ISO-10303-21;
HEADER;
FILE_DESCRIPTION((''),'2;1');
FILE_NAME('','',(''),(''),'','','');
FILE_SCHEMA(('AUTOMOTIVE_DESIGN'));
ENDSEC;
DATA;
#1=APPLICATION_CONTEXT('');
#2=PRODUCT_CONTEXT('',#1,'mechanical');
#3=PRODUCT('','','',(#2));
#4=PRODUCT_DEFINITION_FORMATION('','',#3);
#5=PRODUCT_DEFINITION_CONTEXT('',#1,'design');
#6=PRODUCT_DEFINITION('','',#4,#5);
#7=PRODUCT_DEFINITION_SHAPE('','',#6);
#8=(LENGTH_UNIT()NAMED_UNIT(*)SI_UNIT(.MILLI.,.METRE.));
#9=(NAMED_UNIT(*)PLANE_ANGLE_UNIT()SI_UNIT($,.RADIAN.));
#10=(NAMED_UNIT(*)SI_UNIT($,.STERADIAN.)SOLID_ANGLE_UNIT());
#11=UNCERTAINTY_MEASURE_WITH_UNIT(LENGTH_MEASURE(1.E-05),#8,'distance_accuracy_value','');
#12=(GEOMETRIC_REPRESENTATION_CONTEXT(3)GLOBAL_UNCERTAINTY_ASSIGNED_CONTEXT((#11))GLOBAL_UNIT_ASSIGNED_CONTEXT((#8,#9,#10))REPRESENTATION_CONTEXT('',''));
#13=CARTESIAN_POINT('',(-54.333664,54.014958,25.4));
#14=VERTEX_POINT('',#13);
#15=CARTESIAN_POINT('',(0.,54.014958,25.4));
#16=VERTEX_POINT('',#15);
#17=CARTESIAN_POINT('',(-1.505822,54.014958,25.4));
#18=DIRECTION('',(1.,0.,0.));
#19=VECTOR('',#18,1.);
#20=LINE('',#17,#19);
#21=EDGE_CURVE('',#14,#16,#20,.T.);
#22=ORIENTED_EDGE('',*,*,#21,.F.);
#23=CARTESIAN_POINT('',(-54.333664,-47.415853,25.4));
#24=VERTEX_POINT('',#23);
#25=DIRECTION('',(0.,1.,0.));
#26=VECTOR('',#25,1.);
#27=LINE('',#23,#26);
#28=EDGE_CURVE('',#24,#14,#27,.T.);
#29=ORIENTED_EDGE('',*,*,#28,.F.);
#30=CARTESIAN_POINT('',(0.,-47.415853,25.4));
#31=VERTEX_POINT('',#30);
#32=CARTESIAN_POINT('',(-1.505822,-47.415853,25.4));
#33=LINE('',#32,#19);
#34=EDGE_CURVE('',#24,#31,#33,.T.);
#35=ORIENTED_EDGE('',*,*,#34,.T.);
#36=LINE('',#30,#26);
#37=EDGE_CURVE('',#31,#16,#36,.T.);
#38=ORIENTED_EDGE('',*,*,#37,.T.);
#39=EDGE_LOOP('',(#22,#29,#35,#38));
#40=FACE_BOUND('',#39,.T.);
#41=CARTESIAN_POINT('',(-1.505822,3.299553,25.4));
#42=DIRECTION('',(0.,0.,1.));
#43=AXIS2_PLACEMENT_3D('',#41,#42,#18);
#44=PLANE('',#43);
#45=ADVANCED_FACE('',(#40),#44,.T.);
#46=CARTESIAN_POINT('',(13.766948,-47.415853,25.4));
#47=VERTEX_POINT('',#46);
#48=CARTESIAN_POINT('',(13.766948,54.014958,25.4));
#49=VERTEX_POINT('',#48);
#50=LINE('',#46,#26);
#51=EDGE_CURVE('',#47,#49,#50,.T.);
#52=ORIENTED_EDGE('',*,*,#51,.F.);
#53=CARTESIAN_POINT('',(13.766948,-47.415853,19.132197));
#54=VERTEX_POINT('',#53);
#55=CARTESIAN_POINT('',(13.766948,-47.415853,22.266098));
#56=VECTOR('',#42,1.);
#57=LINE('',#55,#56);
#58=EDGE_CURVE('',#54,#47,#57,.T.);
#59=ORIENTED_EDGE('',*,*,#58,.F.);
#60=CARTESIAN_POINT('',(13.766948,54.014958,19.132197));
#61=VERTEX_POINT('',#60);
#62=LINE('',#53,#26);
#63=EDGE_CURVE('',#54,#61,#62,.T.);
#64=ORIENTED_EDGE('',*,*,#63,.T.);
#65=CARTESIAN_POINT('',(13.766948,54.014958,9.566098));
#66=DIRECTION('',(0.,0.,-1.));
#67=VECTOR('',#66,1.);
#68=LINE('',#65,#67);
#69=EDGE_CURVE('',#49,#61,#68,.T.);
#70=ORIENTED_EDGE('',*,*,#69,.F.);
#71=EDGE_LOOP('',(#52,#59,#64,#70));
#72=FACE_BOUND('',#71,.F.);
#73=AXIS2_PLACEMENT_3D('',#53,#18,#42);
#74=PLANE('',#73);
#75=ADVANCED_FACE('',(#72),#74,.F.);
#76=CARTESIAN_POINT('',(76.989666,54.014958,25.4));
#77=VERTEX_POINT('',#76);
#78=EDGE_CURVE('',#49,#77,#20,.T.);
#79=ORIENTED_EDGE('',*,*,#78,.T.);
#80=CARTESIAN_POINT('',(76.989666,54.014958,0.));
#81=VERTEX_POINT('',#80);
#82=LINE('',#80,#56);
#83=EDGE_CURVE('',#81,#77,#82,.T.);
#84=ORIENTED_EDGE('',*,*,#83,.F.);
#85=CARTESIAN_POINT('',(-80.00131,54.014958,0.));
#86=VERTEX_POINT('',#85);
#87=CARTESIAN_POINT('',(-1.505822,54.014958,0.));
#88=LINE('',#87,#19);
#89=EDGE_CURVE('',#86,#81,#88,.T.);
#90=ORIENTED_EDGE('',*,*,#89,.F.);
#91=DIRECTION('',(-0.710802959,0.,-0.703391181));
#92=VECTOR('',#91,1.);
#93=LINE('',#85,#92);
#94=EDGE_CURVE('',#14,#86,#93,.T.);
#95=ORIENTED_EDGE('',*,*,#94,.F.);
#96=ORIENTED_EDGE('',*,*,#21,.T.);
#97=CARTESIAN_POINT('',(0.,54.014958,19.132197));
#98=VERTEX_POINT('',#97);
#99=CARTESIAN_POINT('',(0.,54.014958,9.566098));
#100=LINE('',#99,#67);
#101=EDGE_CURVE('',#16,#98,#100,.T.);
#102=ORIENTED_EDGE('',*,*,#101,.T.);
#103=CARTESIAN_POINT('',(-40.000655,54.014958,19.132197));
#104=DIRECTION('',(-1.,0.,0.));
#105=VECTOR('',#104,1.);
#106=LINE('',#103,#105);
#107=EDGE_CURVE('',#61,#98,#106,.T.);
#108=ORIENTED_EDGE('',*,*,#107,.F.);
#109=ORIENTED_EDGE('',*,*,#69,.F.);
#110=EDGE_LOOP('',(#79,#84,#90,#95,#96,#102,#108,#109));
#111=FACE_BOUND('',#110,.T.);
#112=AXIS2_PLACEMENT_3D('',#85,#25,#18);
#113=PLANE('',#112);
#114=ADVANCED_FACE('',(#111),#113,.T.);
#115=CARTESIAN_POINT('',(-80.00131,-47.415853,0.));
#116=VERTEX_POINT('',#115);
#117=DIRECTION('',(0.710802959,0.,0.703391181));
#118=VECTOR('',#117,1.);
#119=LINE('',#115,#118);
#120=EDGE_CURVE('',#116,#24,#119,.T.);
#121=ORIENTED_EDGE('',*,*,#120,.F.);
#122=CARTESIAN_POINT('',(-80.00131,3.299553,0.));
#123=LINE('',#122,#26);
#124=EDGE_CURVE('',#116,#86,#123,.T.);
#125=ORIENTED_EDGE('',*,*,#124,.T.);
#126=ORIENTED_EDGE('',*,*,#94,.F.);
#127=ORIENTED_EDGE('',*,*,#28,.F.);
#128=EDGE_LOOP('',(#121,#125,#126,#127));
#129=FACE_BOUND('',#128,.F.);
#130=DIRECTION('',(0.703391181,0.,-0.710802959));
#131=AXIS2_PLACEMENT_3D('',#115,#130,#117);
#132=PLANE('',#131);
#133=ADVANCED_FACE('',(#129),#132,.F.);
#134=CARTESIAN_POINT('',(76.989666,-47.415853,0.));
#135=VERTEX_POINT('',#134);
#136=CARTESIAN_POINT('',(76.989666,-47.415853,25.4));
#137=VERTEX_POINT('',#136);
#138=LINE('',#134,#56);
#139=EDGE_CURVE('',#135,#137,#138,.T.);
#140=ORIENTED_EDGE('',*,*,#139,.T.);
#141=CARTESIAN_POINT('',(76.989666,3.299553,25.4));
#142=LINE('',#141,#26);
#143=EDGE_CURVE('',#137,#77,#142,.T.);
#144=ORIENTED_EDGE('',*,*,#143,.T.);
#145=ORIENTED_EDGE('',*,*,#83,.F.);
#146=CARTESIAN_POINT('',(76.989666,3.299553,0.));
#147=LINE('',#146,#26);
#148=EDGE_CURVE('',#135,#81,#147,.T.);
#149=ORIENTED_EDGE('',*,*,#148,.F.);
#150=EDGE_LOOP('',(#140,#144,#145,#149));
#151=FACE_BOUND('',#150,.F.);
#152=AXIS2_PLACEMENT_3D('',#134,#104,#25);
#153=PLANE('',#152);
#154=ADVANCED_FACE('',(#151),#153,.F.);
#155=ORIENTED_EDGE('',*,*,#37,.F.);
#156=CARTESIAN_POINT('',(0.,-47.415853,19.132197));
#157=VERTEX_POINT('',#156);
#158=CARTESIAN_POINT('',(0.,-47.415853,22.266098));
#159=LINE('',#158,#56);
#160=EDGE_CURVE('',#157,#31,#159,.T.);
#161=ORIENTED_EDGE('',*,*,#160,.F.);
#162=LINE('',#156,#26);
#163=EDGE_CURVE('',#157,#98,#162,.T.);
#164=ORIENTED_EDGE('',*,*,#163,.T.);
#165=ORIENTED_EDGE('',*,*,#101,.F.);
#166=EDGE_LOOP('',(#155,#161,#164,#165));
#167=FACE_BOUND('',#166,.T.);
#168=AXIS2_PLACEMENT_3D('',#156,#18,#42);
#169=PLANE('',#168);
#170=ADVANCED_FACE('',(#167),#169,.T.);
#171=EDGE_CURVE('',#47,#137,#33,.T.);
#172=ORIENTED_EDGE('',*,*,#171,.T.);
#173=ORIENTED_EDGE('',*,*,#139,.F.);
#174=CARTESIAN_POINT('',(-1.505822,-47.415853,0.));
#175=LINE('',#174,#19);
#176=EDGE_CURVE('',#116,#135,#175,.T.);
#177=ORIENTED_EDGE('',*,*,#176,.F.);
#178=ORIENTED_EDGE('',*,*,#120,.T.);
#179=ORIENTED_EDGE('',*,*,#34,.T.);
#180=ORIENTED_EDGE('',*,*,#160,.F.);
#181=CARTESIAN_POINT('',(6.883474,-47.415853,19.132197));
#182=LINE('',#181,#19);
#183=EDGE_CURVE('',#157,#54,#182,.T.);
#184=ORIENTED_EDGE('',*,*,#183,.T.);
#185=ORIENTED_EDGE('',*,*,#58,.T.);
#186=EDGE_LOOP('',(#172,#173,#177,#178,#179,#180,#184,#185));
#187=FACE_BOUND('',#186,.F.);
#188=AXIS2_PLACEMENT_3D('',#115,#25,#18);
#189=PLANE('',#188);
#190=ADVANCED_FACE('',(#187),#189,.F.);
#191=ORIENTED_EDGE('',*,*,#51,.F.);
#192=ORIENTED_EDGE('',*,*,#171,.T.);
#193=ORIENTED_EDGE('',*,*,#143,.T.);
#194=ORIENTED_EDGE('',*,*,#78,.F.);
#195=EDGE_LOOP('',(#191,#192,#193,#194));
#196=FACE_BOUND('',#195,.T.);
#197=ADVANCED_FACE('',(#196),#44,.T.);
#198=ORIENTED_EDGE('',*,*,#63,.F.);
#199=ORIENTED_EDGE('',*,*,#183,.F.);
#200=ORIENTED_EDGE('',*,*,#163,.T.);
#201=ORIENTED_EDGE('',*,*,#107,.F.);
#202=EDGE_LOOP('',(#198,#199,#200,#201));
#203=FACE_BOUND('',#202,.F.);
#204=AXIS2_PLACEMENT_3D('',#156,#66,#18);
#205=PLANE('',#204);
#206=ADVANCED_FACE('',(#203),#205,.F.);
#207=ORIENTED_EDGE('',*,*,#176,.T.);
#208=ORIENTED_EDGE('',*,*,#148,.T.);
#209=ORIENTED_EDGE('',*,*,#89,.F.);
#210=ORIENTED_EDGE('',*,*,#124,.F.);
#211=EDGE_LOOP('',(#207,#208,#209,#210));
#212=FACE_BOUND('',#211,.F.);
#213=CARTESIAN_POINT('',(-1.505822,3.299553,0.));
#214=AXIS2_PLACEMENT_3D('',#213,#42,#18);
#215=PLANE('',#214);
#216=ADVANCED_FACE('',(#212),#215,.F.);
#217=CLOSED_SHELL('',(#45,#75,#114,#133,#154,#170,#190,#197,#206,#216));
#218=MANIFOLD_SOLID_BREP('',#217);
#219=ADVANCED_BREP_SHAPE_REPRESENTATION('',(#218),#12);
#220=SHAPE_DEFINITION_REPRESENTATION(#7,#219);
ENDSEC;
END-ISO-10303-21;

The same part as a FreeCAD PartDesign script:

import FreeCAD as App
import Part
import Sketcher
Q = App.Units.Quantity

doc = App.newDocument("Part")
body = doc.addObject("PartDesign::Body", "Body")

sketch1 = body.newObject("Sketcher::SketchObject", "Sketch")
sketch1.AttachmentSupport = (doc.getObject("XY_Plane"), [""])
sketch1.MapMode = "FlatFace"
sketch1.addGeometry(Part.LineSegment(App.Vector(-80.00131, 54.014958, 0), App.Vector(-80.00131, -47.415853, 0)), False)
sketch1.addGeometry(Part.LineSegment(App.Vector(-80.00131, -47.415853, 0), App.Vector(76.989666, -47.415853, 0)), False)
sketch1.addGeometry(Part.LineSegment(App.Vector(76.989666, -47.415853, 0), App.Vector(76.989666, 54.014958, 0)), False)
sketch1.addGeometry(Part.LineSegment(App.Vector(76.989666, 54.014958, 0), App.Vector(-80.00131, 54.014958, 0)), False)
sketch1.addConstraint(Sketcher.Constraint("Coincident", 0, 2, 1, 1))
sketch1.addConstraint(Sketcher.Constraint("Coincident", 1, 2, 2, 1))
sketch1.addConstraint(Sketcher.Constraint("Coincident", 2, 2, 3, 1))
sketch1.addConstraint(Sketcher.Constraint("Coincident", 3, 2, 0, 1))
sketch1.addConstraint(Sketcher.Constraint("Vertical", 0))
sketch1.addConstraint(Sketcher.Constraint("Horizontal", 1))
sketch1.addConstraint(Sketcher.Constraint("Vertical", 2))
sketch1.addConstraint(Sketcher.Constraint("Horizontal", 3))
sketch1.addConstraint(Sketcher.Constraint("DistanceY", 0, 2, 0, 1, 101.430811))
sketch1.addConstraint(Sketcher.Constraint("DistanceX", 1, 1, 1, 2, 156.990975))
sketch1.addConstraint(Sketcher.Constraint("DistanceX", 0, 2, -1, 1, 80.00131))
sketch1.addConstraint(Sketcher.Constraint("DistanceY", -1, 1, 2, 2, 54.014958))
pad1 = body.newObject("PartDesign::Pad", "Pad")
pad1.Profile = sketch1
pad1.Length = Q("1 in")

sketch2 = body.newObject("Sketcher::SketchObject", "Sketch001")
sketch2.AttachmentSupport = (doc.getObject("XZ_Plane"), [""])
sketch2.MapMode = "FlatFace"
sketch2.AttachmentOffset = App.Placement(App.Vector(0, 0, 47.415853), App.Rotation())
sketch2.addGeometry(Part.LineSegment(App.Vector(-80.00131, 25.4, 0), App.Vector(-80.00131, 0, 0)), False)
sketch2.addGeometry(Part.LineSegment(App.Vector(-80.00131, 0, 0), App.Vector(-54.333664, 25.4, 0)), False)
sketch2.addGeometry(Part.LineSegment(App.Vector(-54.333664, 25.4, 0), App.Vector(-80.00131, 25.4, 0)), False)
sketch2.addConstraint(Sketcher.Constraint("Coincident", 0, 2, 1, 1))
sketch2.addConstraint(Sketcher.Constraint("Coincident", 1, 2, 2, 1))
sketch2.addConstraint(Sketcher.Constraint("Coincident", 2, 2, 0, 1))
sketch2.addConstraint(Sketcher.Constraint("Vertical", 0))
sketch2.addConstraint(Sketcher.Constraint("Horizontal", 2))
sketch2.addConstraint(Sketcher.Constraint("PointOnObject", 0, 2, -1))
sketch2.addConstraint(Sketcher.Constraint("DistanceY", 0, 2, 0, 1, Q("1 in")))
sketch2.addConstraint(Sketcher.Constraint("DistanceX", 2, 2, 2, 1, 25.667645))
sketch2.addConstraint(Sketcher.Constraint("DistanceX", 0, 2, -1, 1, 80.00131))
pocket1 = body.newObject("PartDesign::Pocket", "Pocket")
pocket1.Profile = sketch2
pocket1.Length = 127.821082

sketch3 = body.newObject("Sketcher::SketchObject", "Sketch002")
sketch3.AttachmentSupport = (doc.getObject("XZ_Plane"), [""])
sketch3.MapMode = "FlatFace"
sketch3.AttachmentOffset = App.Placement(App.Vector(0, 0, 47.415853), App.Rotation())
sketch3.addGeometry(Part.LineSegment(App.Vector(0, 25.4, 0), App.Vector(0, 19.132197, 0)), False)
sketch3.addGeometry(Part.LineSegment(App.Vector(0, 19.132197, 0), App.Vector(13.766948, 19.132197, 0)), False)
sketch3.addGeometry(Part.LineSegment(App.Vector(13.766948, 19.132197, 0), App.Vector(13.766948, 25.4, 0)), False)
sketch3.addGeometry(Part.LineSegment(App.Vector(13.766948, 25.4, 0), App.Vector(0, 25.4, 0)), False)
sketch3.addConstraint(Sketcher.Constraint("Coincident", 0, 2, 1, 1))
sketch3.addConstraint(Sketcher.Constraint("Coincident", 1, 2, 2, 1))
sketch3.addConstraint(Sketcher.Constraint("Coincident", 2, 2, 3, 1))
sketch3.addConstraint(Sketcher.Constraint("Coincident", 3, 2, 0, 1))
sketch3.addConstraint(Sketcher.Constraint("Vertical", 0))
sketch3.addConstraint(Sketcher.Constraint("Horizontal", 1))
sketch3.addConstraint(Sketcher.Constraint("Vertical", 2))
sketch3.addConstraint(Sketcher.Constraint("Horizontal", 3))
sketch3.addConstraint(Sketcher.Constraint("PointOnObject", 0, 2, -2))
sketch3.addConstraint(Sketcher.Constraint("DistanceY", -1, 1, 2, 2, Q("1 in")))
sketch3.addConstraint(Sketcher.Constraint("DistanceX", 1, 1, 1, 2, 13.766948))
sketch3.addConstraint(Sketcher.Constraint("DistanceY", 0, 2, 0, 1, 6.267803))
pocket2 = body.newObject("PartDesign::Pocket", "Pocket001")
pocket2.Profile = sketch3
pocket2.Length = 157.06224

doc.recompute()
